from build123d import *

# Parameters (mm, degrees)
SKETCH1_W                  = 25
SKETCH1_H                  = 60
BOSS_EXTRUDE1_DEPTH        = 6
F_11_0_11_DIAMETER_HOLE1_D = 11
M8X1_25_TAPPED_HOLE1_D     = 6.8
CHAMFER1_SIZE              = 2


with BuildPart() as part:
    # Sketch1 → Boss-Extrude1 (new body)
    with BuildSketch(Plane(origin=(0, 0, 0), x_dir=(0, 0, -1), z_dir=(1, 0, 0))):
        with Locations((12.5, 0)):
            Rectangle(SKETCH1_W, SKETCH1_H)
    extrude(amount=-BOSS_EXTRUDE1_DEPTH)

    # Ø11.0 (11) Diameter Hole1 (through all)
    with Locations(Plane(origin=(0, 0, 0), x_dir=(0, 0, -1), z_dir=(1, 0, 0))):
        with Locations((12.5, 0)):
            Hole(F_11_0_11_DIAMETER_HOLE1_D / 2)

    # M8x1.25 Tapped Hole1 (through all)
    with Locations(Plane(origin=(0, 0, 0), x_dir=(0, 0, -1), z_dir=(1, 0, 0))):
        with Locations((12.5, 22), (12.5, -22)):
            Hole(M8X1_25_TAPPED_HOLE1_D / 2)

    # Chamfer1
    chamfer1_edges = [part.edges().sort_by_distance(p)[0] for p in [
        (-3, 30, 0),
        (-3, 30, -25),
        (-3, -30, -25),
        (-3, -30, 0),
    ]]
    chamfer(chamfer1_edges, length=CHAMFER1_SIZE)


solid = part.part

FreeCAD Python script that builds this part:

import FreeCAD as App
import Part
import Sketcher

V = App.Vector
Q = App.Units.Quantity


def edges_at(feature, points):
    """Names of the edges that pass closest to the given points."""
    edges = feature.Shape.Edges
    near = lambda p: min(range(len(edges)), key=lambda i: edges[i].distToShape(Part.Vertex(*p))[0])
    return sorted({f"Edge{near(p) + 1}" for p in points})

doc = App.newDocument("Part")
params = doc.addObject("Spreadsheet::Sheet", "Params")
for row, (alias, value) in enumerate([
    ("sketch1_width", "60 mm"),
    ("sketch1_height", "25 mm"),
    ("pad1_length", "6 mm"),
    ("sketch2_diameter", "11 mm"),
    ("hole_diameter", "11 mm"),
    ("sketch3_diameter", "6.8 mm"),
    ("hole2_diameter", "6.8 mm"),
    ("chamfer_size", "2 mm"),
], start=1):
    params.set(f"A{row}", alias)
    params.set(f"B{row}", "=" + value)
    params.setAlias(f"B{row}", alias)

body = doc.addObject("PartDesign::Body", "Body")

sketch1 = body.newObject("Sketcher::SketchObject", "Sketch")
sketch1.AttachmentSupport = (doc.getObject("YZ_Plane"), [""])
sketch1.MapMode = "FlatFace"
sketch1.addGeometry([
    Part.LineSegment(V(30, 0, 0), V(-30, 0, 0)),
    Part.LineSegment(V(-30, 0, 0), V(-30, -25, 0)),
    Part.LineSegment(V(-30, -25, 0), V(30, -25, 0)),
    Part.LineSegment(V(30, -25, 0), V(30, 0, 0)),
], False)
sketch1.addConstraint([
    Sketcher.Constraint("Coincident", 0, 2, 1, 1),
    Sketcher.Constraint("Coincident", 1, 2, 2, 1),
    Sketcher.Constraint("Coincident", 2, 2, 3, 1),
    Sketcher.Constraint("Coincident", 3, 2, 0, 1),
    Sketcher.Constraint("Horizontal", 0),
    Sketcher.Constraint("Vertical", 1),
    Sketcher.Constraint("Horizontal", 2),
    Sketcher.Constraint("Vertical", 3),
    Sketcher.Constraint("Symmetric", 0, 2, 3, 2, -1, 1),
    Sketcher.Constraint("DistanceX", 0, 2, 0, 1, Q("60 mm")),
    Sketcher.Constraint("DistanceY", 1, 2, 1, 1, Q("25 mm")),
])
sketch1.setExpression("Constraints[9]", "Params.sketch1_width")
sketch1.setExpression("Constraints[10]", "Params.sketch1_height")
pad1 = body.newObject("PartDesign::Pad", "Pad")
pad1.Profile = sketch1
pad1.setExpression("Length", "Params.pad1_length")
pad1.Reversed = True

sketch2 = body.newObject("Sketcher::SketchObject", "Sketch001")
sketch2.AttachmentSupport = (doc.getObject("YZ_Plane"), [""])
sketch2.MapMode = "FlatFace"
sketch2.addGeometry(Part.Circle(V(0, -12, 0), V(0, 0, 1), 6), False)
sketch2.addConstraint([
    Sketcher.Constraint("PointOnObject", 0, 3, -2),
    Sketcher.Constraint("Diameter", 0, Q("11 mm")),
    Sketcher.Constraint("DistanceY", 0, 3, -1, 1, Q("12.5 mm")),
])
sketch2.setExpression("Constraints[1]", "Params.sketch2_diameter")
doc.recompute()
hole = body.newObject("PartDesign::Hole", "Hole")
hole.Profile = sketch2
hole.ThreadType = "None"
hole.setExpression("Diameter", "Params.hole_diameter")
hole.DepthType = "ThroughAll"

sketch3 = body.newObject("Sketcher::SketchObject", "Sketch002")
sketch3.AttachmentSupport = (doc.getObject("YZ_Plane"), [""])
sketch3.MapMode = "FlatFace"
sketch3.addGeometry([
    Part.Circle(V(22, -12.5, 0), V(0, 0, 1), 3.4),
    Part.Circle(V(-22, -12.5, 0), V(0, 0, 1), 3.4),
], False)
sketch3.addConstraint([
    Sketcher.Constraint("Equal", 0, 1),
    Sketcher.Constraint("Symmetric", 0, 3, 1, 3, -2),
    Sketcher.Constraint("Diameter", 0, Q("6.8 mm")),
    Sketcher.Constraint("DistanceX", -1, 1, 0, 3, Q("22 mm")),
    Sketcher.Constraint("DistanceY", 0, 3, -1, 1, Q("12.5 mm")),
])
sketch3.setExpression("Constraints[2]", "Params.sketch3_diameter")
doc.recompute()
hole2 = body.newObject("PartDesign::Hole", "Hole001")
hole2.Profile = sketch3
hole2.ThreadType = "None"
hole2.setExpression("Diameter", "Params.hole2_diameter")
hole2.DepthType = "ThroughAll"
doc.recompute()

chamfer = body.newObject("PartDesign::Chamfer", "Chamfer")
chamfer.Base = (hole2, edges_at(hole2, [
    (-3, 30, 0),
    (-3, 30, -25),
    (-3, -30, -25),
    (-3, -30, 0),
]))
chamfer.setExpression("Size", "Params.chamfer_size")

doc.recompute()
